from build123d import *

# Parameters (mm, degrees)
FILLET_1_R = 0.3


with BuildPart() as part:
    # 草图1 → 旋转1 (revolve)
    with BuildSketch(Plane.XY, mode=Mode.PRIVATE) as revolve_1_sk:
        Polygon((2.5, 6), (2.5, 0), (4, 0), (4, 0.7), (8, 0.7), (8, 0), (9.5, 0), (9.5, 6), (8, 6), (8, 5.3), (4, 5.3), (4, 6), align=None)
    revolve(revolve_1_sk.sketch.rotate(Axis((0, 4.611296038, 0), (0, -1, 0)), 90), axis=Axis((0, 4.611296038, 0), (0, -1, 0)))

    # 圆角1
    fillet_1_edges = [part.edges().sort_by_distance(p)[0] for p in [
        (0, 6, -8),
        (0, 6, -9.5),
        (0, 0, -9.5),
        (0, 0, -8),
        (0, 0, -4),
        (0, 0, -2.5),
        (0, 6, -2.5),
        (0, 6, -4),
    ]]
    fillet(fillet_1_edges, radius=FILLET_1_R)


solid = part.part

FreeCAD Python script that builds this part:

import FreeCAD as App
import Part
import Sketcher
from FreeCAD import Vector
Q = App.Units.Quantity


def edges_at(feature, points):
    """Names of the edges that pass closest to the given points."""
    edges = feature.Shape.Edges
    near = lambda p: min(range(len(edges)), key=lambda i: edges[i].distToShape(Part.Vertex(*p))[0])
    return sorted({f"Edge{near(p) + 1}" for p in points})


def add_polygon(sketch, points):
    """Adds a closed chain of lines whose ends are joined by coincident constraints."""
    first, n = sketch.GeometryCount, len(points)
    for a, b in zip(points, points[1:] + points[:1]):
        sketch.addGeometry(Part.LineSegment(App.Vector(*a, 0), App.Vector(*b, 0)), False)
    for i in range(n):
        sketch.addConstraint(Sketcher.Constraint("Coincident", first + i, 2, first + (i + 1) % n, 1))

doc = App.newDocument("Part")
params = doc.addObject("Spreadsheet::Sheet", "Params")
for row, (alias, value) in enumerate([
    ("sketch1_width", "4 mm"),
    ("sketch1_height", "6 mm"),
    ("sketch1_width2", "1.5 mm"),
    ("sketch1_height2", "0.7 mm"),
    ("revolution_angle", "360 deg"),
    ("fillet_radius", "0.3 mm"),
], start=1):
    params.set(f"A{row}", alias)
    params.set(f"B{row}", "=" + value)
    params.setAlias(f"B{row}", alias)

body = doc.addObject("PartDesign::Body", "Body")

# Sketch on XY plane
sketch1 = doc.addObject("Sketcher::SketchObject", "Sketch")
body.addObject(sketch1)
sketch1.AttachmentSupport = (doc.XY_Plane, [""])
sketch1.MapMode = "FlatFace"
add_polygon(sketch1, [(2.5, 6), (2.5, 0), (4, 0), (4, 0.7), (8, 0.7), (8, 0), (9.5, 0), (9.5, 6), (8, 6), (8, 5.3), (4, 5.3), (4, 6)])  # lines 0-11
sketch1.addConstraint([
    Sketcher.Constraint("Vertical", 0),
    Sketcher.Constraint("Horizontal", 1),
    Sketcher.Constraint("Vertical", 2),
    Sketcher.Constraint("Horizontal", 3),
    Sketcher.Constraint("Vertical", 4),
    Sketcher.Constraint("Horizontal", 5),
    Sketcher.Constraint("Vertical", 6),
    Sketcher.Constraint("Horizontal", 7),
    Sketcher.Constraint("Vertical", 8),
    Sketcher.Constraint("Horizontal", 9),
    Sketcher.Constraint("Vertical", 10),
    Sketcher.Constraint("Horizontal", 11),
    Sketcher.Constraint("PointOnObject", 0, 2, -1),
    Sketcher.Constraint("PointOnObject", 4, 2, -1),
    Sketcher.Constraint("Horizontal", 7, 2, 10, 2),
    Sketcher.Constraint("Vertical", 4, 2, 7, 2),
    Sketcher.Constraint("Vertical", 2, 2, 9, 2),
    Sketcher.Constraint("Equal", 1, 5),
    Sketcher.Constraint("Equal", 4, 8),
    Sketcher.Constraint("DistanceX", 3, 1, 3, 2, Q("4 mm")),
    Sketcher.Constraint("DistanceY", 0, 2, 0, 1, Q("6 mm")),
    Sketcher.Constraint("DistanceX", 1, 1, 1, 2, Q("1.5 mm")),
    Sketcher.Constraint("DistanceY", 2, 1, 2, 2, Q("0.7 mm")),
    Sketcher.Constraint("DistanceX", -1, 1, 1, 2, Q("4 mm")),
])
sketch1.setExpression("Constraints[31]", "Params.sketch1_width")
sketch1.setExpression("Constraints[32]", "Params.sketch1_height")
sketch1.setExpression("Constraints[33]", "Params.sketch1_width2")
sketch1.setExpression("Constraints[34]", "Params.sketch1_height2")
revolution = doc.addObject("PartDesign::Revolution", "Revolution")
body.addObject(revolution)
revolution.Profile = sketch1
revolution.ReferenceAxis = (sketch1, ["V_Axis"])
revolution.setExpression("Angle", "Params.revolution_angle")
doc.recompute()

fillet = doc.addObject("PartDesign::Fillet", "Fillet")
body.addObject(fillet)
fillet.Base = (revolution, edges_at(revolution, [
    (0, 6, -8),
    (0, 6, -9.5),
    (0, 0, -9.5),
    (0, 0, -8),
    (0, 0, -4),
    (0, 0, -2.5),
    (0, 6, -2.5),
    (0, 6, -4),
]))
fillet.setExpression("Radius", "Params.fillet_radius")

doc.recompute()
